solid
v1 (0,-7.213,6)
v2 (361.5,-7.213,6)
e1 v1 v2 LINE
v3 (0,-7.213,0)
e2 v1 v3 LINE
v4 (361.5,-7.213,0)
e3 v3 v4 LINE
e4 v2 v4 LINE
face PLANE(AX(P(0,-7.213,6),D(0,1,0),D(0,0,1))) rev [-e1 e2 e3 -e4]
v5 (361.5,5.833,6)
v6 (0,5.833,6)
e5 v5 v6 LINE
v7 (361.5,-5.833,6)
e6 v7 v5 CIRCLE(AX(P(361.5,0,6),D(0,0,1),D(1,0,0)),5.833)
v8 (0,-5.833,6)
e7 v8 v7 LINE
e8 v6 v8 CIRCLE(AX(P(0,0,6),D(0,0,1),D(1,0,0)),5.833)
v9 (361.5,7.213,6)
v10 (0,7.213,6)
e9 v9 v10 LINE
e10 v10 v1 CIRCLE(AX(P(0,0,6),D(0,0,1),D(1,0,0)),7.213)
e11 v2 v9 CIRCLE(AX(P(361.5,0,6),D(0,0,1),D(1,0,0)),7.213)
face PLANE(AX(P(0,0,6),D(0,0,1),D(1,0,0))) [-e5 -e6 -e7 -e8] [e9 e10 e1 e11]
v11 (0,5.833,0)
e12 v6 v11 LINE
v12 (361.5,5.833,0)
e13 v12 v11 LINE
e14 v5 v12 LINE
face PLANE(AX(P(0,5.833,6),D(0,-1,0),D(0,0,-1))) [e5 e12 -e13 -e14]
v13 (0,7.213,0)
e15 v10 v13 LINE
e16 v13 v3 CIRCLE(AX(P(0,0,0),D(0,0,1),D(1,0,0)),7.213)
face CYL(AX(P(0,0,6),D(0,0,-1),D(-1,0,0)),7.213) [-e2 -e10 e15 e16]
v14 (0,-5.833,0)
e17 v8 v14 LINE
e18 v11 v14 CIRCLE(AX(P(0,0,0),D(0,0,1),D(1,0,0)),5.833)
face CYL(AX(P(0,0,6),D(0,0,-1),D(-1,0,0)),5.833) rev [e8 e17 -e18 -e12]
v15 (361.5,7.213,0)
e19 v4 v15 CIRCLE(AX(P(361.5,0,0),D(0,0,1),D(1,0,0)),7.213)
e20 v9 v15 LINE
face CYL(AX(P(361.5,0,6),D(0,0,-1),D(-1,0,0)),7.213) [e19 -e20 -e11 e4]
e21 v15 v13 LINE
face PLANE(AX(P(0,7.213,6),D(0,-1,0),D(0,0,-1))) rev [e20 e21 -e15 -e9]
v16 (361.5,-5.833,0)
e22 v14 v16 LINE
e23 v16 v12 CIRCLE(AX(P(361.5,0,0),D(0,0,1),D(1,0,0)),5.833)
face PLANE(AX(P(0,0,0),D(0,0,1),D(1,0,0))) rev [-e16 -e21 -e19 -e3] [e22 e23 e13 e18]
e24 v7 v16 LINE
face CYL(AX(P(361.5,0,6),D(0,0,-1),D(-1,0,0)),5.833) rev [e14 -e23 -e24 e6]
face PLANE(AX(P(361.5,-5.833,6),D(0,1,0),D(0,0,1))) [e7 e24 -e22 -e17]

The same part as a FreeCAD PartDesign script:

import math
import FreeCAD as App
import Part
import Sketcher
from FreeCAD import Vector
Q = App.Units.Quantity

doc = App.newDocument("Part")
body = doc.addObject("PartDesign::Body", "Body")

# Sketch on XY plane
sketch1 = doc.addObject("Sketcher::SketchObject", "Sketch")
body.addObject(sketch1)
sketch1.AttachmentSupport = (doc.XY_Plane, [""])
sketch1.MapMode = "FlatFace"
sketch1.addGeometry(Part.LineSegment(Vector(361.5, 7.213, 0), Vector(0, 7.213, 0)), False)
sketch1.addGeometry(Part.ArcOfCircle(Part.Circle(Vector(0, 0, 0), Vector(0, 0, 1), 7.213), math.radians(90), math.radians(270)), False)
sketch1.addGeometry(Part.LineSegment(Vector(0, -7.213, 0), Vector(361.5, -7.213, 0)), False)
sketch1.addGeometry(Part.ArcOfCircle(Part.Circle(Vector(361.5, 0, 0), Vector(0, 0, 1), 7.213), math.radians(-90), math.radians(90)), False)
sketch1.addGeometry(Part.LineSegment(Vector(0, 5.833, 0), Vector(361.5, 5.833, 0)), False)
sketch1.addGeometry(Part.ArcOfCircle(Part.Circle(Vector(361.5, 0, 0), Vector(0, 0, 1), 5.833), math.radians(-90), math.radians(90)), False)
sketch1.addGeometry(Part.LineSegment(Vector(361.5, -5.833, 0), Vector(0, -5.833, 0)), False)
sketch1.addGeometry(Part.ArcOfCircle(Part.Circle(Vector(0, 0, 0), Vector(0, 0, 1), 5.833), math.radians(90), math.radians(270)), False)
sketch1.addConstraint(Sketcher.Constraint("Tangent", 0, 2, 1, 1))
sketch1.addConstraint(Sketcher.Constraint("Tangent", 1, 2, 2, 1))
sketch1.addConstraint(Sketcher.Constraint("Tangent", 2, 2, 3, 1))
sketch1.addConstraint(Sketcher.Constraint("Tangent", 3, 2, 0, 1))
sketch1.addConstraint(Sketcher.Constraint("Tangent", 4, 2, 5, 2))
sketch1.addConstraint(Sketcher.Constraint("Tangent", 5, 1, 6, 1))
sketch1.addConstraint(Sketcher.Constraint("Tangent", 6, 2, 7, 2))
sketch1.addConstraint(Sketcher.Constraint("Tangent", 7, 1, 4, 1))
sketch1.addConstraint(Sketcher.Constraint("Horizontal", 0))
sketch1.addConstraint(Sketcher.Constraint("Horizontal", 2))
sketch1.addConstraint(Sketcher.Constraint("Horizontal", 4))
sketch1.addConstraint(Sketcher.Constraint("Horizontal", 6))
sketch1.addConstraint(Sketcher.Constraint("Coincident", 1, 3, -1, 1))
sketch1.addConstraint(Sketcher.Constraint("Coincident", 7, 3, -1, 1))
sketch1.addConstraint(Sketcher.Constraint("Vertical", 5, 3, 2, 2))
sketch1.addConstraint(Sketcher.Constraint("DistanceX", 0, 2, 0, 1, Q("361.5 mm")))
sketch1.addConstraint(Sketcher.Constraint("Radius", 1, Q("7.213 mm")))
sketch1.addConstraint(Sketcher.Constraint("Radius", 5, Q("5.833 mm")))
pad1 = doc.addObject("PartDesign::Pad", "Pad")
body.addObject(pad1)
pad1.Profile = sketch1
pad1.Length = 6

doc.recompute()
